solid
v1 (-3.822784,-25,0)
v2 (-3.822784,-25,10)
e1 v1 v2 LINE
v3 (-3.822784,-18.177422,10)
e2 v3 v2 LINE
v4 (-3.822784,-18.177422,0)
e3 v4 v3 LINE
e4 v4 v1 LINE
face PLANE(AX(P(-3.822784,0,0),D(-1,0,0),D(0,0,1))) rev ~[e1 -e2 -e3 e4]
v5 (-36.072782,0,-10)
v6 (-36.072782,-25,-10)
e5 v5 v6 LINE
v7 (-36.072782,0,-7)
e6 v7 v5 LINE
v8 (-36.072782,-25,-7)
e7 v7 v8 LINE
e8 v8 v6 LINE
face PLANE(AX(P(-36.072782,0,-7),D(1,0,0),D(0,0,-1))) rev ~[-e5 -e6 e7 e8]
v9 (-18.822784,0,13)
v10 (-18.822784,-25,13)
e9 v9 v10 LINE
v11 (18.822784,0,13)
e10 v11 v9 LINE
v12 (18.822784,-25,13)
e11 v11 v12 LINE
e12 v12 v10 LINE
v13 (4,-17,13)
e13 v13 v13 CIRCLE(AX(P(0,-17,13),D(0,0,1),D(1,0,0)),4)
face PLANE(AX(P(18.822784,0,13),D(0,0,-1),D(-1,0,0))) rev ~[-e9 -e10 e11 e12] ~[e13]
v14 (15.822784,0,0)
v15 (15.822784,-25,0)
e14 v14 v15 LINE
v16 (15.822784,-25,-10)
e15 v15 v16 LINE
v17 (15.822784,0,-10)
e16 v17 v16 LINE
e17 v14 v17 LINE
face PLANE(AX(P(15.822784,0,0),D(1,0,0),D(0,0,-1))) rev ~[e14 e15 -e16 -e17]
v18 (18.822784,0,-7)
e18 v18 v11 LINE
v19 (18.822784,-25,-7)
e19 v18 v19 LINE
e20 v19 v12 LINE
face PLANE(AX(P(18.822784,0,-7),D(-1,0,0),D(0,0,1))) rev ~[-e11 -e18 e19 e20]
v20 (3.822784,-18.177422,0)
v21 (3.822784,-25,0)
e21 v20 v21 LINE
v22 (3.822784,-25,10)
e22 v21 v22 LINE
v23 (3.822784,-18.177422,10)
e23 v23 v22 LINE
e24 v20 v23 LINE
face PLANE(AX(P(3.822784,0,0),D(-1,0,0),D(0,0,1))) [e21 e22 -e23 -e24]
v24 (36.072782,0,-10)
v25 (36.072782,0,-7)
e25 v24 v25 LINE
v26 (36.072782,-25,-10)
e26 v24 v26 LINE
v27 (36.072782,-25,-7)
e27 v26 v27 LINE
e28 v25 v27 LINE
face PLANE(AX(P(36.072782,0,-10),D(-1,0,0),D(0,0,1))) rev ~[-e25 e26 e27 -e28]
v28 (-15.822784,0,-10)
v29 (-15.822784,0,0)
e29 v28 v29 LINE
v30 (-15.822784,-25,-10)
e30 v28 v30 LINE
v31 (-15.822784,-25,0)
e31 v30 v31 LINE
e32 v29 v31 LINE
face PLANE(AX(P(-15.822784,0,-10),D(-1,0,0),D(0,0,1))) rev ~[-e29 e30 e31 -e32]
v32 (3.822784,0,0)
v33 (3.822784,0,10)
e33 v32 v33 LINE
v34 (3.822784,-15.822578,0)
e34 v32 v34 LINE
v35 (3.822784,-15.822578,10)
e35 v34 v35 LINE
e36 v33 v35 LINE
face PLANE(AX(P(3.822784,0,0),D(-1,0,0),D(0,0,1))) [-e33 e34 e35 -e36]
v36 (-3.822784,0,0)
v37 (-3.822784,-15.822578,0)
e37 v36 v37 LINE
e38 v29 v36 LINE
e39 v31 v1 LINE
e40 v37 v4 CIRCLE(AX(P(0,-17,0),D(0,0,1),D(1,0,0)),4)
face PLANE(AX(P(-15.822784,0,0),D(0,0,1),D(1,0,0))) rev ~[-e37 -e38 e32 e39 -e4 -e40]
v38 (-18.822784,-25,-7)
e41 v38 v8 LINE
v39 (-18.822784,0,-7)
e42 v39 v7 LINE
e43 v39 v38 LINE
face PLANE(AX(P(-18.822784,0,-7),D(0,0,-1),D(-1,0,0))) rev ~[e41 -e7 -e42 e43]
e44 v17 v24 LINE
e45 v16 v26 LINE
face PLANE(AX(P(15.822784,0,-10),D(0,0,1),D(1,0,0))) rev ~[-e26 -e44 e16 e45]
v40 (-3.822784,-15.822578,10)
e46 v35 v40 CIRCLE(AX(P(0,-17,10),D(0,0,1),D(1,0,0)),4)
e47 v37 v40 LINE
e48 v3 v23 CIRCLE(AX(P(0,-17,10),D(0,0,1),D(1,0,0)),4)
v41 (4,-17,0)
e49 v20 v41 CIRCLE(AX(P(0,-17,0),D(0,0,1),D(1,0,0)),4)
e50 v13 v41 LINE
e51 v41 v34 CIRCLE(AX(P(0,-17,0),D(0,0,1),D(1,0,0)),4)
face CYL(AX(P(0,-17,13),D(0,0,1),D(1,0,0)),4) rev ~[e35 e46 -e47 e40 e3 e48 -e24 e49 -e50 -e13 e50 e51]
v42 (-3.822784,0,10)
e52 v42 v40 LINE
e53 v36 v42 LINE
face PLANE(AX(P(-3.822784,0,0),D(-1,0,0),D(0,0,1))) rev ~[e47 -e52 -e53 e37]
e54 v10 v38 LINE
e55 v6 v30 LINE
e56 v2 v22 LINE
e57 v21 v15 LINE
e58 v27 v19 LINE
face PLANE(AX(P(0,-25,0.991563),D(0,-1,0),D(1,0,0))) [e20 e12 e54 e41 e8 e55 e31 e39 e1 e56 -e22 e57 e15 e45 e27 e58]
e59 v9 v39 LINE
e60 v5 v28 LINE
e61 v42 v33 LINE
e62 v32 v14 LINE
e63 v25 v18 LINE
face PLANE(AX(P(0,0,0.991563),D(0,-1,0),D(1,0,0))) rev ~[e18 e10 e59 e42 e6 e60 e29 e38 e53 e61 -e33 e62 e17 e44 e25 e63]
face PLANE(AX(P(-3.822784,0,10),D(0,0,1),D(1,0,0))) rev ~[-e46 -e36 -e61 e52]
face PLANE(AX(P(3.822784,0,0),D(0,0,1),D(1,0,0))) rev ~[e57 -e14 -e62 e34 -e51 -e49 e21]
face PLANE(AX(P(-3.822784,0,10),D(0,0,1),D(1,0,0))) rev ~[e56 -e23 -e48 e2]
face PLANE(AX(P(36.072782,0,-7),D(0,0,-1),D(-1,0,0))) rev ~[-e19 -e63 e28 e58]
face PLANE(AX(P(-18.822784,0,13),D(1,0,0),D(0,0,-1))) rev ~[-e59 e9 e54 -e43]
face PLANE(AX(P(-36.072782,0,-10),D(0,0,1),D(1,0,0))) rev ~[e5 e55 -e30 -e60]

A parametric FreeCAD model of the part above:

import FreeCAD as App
import Part
import Sketcher
from FreeCAD import Vector

doc = App.newDocument("Part")
params = doc.addObject("Spreadsheet::Sheet", "Params")
for row, (alias, value) in enumerate([
    ("sketch1_width", "12 mm"),
    ("sketch1_height", "10 mm"),
    ("sketch1_height2", "3 mm"),
    ("sketch1_height3", "20 mm"),
    ("pad1_length", "25 mm"),
    ("sketch2_diameter", "8 mm"),
], start=1):
    params.set(f"A{row}", alias)
    params.set(f"B{row}", "=" + value)
    params.setAlias(f"B{row}", alias)

body = doc.addObject("PartDesign::Body", "Body")

sketch1 = doc.addObject("Sketcher::SketchObject", "Sketch")
body.addObject(sketch1)
sketch1.AttachmentSupport = (doc.XZ_Plane, [""])
sketch1.MapMode = "FlatFace"
sketch1.addGeometry([
    Part.LineSegment(Vector(15.8, 0, 0), Vector(15.8, -10, 0)),
    Part.LineSegment(Vector(15.8, -10, 0), Vector(36.1, -10, 0)),
    Part.LineSegment(Vector(36.1, -10, 0), Vector(36.1, -7, 0)),
    Part.LineSegment(Vector(36.1, -7, 0), Vector(18.8, -7, 0)),
    Part.LineSegment(Vector(18.8, -7, 0), Vector(18.8, 13, 0)),
    Part.LineSegment(Vector(18.8, 13, 0), Vector(-18.8, 13, 0)),
    Part.LineSegment(Vector(-18.8, 13, 0), Vector(-18.8, -7, 0)),
    Part.LineSegment(Vector(-18.8, -7, 0), Vector(-36.1, -7, 0)),
    Part.LineSegment(Vector(-36.1, -7, 0), Vector(-36.1, -10, 0)),
    Part.LineSegment(Vector(-36.1, -10, 0), Vector(-15.8, -10, 0)),
    Part.LineSegment(Vector(-15.8, -10, 0), Vector(-15.8, 0, 0)),
    Part.LineSegment(Vector(-15.8, 0, 0), Vector(-3.8, 0, 0)),
    Part.LineSegment(Vector(-3.8, 0, 0), Vector(-3.8, 10, 0)),
    Part.LineSegment(Vector(-3.8, 10, 0), Vector(3.8, 10, 0)),
    Part.LineSegment(Vector(3.8, 10, 0), Vector(3.8, 0, 0)),
    Part.LineSegment(Vector(3.8, 0, 0), Vector(15.8, 0, 0)),
], False)
sketch1.addConstraint([
    Sketcher.Constraint("Coincident", 0, 2, 1, 1),
    Sketcher.Constraint("Coincident", 1, 2, 2, 1),
    Sketcher.Constraint("Coincident", 2, 2, 3, 1),
    Sketcher.Constraint("Coincident", 3, 2, 4, 1),
    Sketcher.Constraint("Coincident", 4, 2, 5, 1),
    Sketcher.Constraint("Coincident", 5, 2, 6, 1),
    Sketcher.Constraint("Coincident", 6, 2, 7, 1),
    Sketcher.Constraint("Coincident", 7, 2, 8, 1),
    Sketcher.Constraint("Coincident", 8, 2, 9, 1),
    Sketcher.Constraint("Coincident", 9, 2, 10, 1),
    Sketcher.Constraint("Coincident", 10, 2, 11, 1),
    Sketcher.Constraint("Coincident", 11, 2, 12, 1),
    Sketcher.Constraint("Coincident", 12, 2, 13, 1),
    Sketcher.Constraint("Coincident", 13, 2, 14, 1),
    Sketcher.Constraint("Coincident", 14, 2, 15, 1),
    Sketcher.Constraint("Coincident", 15, 2, 0, 1),
    Sketcher.Constraint("Vertical", 0),
    Sketcher.Constraint("Horizontal", 1),
    Sketcher.Constraint("Vertical", 2),
    Sketcher.Constraint("Horizontal", 3),
    Sketcher.Constraint("Vertical", 4),
    Sketcher.Constraint("Horizontal", 5),
    Sketcher.Constraint("Vertical", 6),
    Sketcher.Constraint("Horizontal", 7),
    Sketcher.Constraint("Vertical", 8),
    Sketcher.Constraint("Horizontal", 9),
    Sketcher.Constraint("Vertical", 10),
    Sketcher.Constraint("Horizontal", 11),
    Sketcher.Constraint("Vertical", 12),
    Sketcher.Constraint("Horizontal", 13),
    Sketcher.Constraint("Vertical", 14),
    Sketcher.Constraint("Horizontal", 15),
    Sketcher.Constraint("Symmetric", 11, 2, 14, 2, -1, 1),
    Sketcher.Constraint("Symmetric", 3, 2, 6, 2, -2),
    Sketcher.Constraint("Symmetric", 1, 2, 8, 2, -2),
    Sketcher.Constraint("Symmetric", 10, 2, 15, 2, -2),
    Sketcher.Constraint("Equal", 10, 12),
    Sketcher.Constraint("DistanceX", 11, 1, 11, 2, 12.0),
    Sketcher.Constraint("DistanceY", 0, 2, 0, 1, 10.0),
    Sketcher.Constraint("DistanceY", 2, 1, 2, 2, 3.0),
    Sketcher.Constraint("DistanceY", 4, 1, 4, 2, 20.0),
    Sketcher.Constraint("DistanceX", 0, 2, 3, 2, 3.0),
    Sketcher.Constraint("DistanceX", 1, 1, 1, 2, 20.249998),
    Sketcher.Constraint("DistanceX", 5, 2, 5, 1, 37.645568),
])
sketch1.setExpression("Constraints[37]", "Params.sketch1_width")
sketch1.setExpression("Constraints[38]", "Params.sketch1_height")
sketch1.setExpression("Constraints[39]", "Params.sketch1_height2")
sketch1.setExpression("Constraints[40]", "Params.sketch1_height3")
pad1 = doc.addObject("PartDesign::Pad", "Pad")
body.addObject(pad1)
pad1.Profile = sketch1
pad1.setExpression("Length", "Params.pad1_length")

sketch2 = doc.addObject("Sketcher::SketchObject", "Sketch001")
body.addObject(sketch2)
sketch2.AttachmentSupport = (doc.XY_Plane, [""])
sketch2.MapMode = "FlatFace"
sketch2.AttachmentOffset = App.Placement(Vector(0, 0, 13), App.Rotation())
sketch2.addGeometry(Part.Circle(Vector(0, -17, 0), Vector(0, 0, 1), 4), False)
sketch2.addConstraint([
    Sketcher.Constraint("PointOnObject", 0, 3, -2),
    Sketcher.Constraint("Diameter", 0, 8.0),
    Sketcher.Constraint("DistanceY", 0, 3, -1, 1, 17.0),
])
sketch2.setExpression("Constraints[1]", "Params.sketch2_diameter")
pocket1 = doc.addObject("PartDesign::Pocket", "Pocket")
body.addObject(pocket1)
pocket1.Profile = sketch2
pocket1.Type = "ThroughAll"

doc.recompute()
